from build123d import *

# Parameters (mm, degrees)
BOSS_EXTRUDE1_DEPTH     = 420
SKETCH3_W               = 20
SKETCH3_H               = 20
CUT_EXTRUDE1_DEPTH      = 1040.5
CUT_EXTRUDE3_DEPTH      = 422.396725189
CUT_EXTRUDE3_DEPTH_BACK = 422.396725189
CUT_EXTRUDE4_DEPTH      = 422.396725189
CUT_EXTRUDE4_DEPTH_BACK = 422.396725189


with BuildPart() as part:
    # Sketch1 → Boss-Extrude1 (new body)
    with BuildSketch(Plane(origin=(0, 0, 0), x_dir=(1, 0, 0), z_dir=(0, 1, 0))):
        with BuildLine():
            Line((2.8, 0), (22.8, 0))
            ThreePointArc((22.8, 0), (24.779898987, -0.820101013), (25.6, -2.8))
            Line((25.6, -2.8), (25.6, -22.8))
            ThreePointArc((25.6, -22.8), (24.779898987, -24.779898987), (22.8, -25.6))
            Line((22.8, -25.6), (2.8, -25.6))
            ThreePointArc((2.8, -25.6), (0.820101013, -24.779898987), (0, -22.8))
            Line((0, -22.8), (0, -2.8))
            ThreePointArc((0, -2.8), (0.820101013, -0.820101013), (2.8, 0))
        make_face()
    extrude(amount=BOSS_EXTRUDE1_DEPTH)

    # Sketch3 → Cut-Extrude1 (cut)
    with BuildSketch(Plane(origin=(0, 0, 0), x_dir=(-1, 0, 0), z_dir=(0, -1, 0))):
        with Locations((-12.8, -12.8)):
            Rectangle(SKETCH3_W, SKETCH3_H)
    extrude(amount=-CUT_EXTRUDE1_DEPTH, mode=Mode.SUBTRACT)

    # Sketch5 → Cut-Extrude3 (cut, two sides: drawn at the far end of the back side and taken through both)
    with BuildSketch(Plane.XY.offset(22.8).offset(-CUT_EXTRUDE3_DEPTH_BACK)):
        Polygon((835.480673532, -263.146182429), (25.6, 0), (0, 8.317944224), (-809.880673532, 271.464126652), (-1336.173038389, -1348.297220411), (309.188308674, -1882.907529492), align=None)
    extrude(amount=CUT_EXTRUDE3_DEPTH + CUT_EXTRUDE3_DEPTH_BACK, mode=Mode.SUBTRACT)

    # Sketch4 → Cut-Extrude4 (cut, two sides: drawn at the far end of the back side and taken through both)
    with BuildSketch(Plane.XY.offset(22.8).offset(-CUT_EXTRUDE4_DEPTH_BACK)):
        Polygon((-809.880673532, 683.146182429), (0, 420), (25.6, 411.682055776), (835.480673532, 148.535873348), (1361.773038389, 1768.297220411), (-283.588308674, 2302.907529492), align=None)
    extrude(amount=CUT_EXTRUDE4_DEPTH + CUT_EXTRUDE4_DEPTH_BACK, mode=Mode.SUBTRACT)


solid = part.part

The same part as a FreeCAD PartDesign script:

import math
import FreeCAD as App
import Part
import Sketcher

V = App.Vector
Q = App.Units.Quantity

doc = App.newDocument("Part")
body = doc.addObject("PartDesign::Body", "Body")

# Sketch on XZ plane
sketch1 = body.newObject("Sketcher::SketchObject", "Sketch")
sketch1.AttachmentSupport = (doc.getObject("XZ_Plane"), [""])
sketch1.MapMode = "FlatFace"
sketch1.addGeometry(Part.LineSegment(V(22.8, 0, 0), V(2.8, 0, 0)), False)
sketch1.addGeometry(Part.ArcOfCircle(Part.Circle(V(2.8, 2.8, 0), V(0, 0, 1), 2.8), math.radians(-180), math.radians(-90)), False)
sketch1.addGeometry(Part.LineSegment(V(0, 2.8, 0), V(0, 22.8, 0)), False)
sketch1.addGeometry(Part.ArcOfCircle(Part.Circle(V(2.8, 22.8, 0), V(0, 0, 1), 2.8), math.radians(90), math.radians(180)), False)
sketch1.addGeometry(Part.LineSegment(V(2.8, 25.6, 0), V(22.8, 25.6, 0)), False)
sketch1.addGeometry(Part.ArcOfCircle(Part.Circle(V(22.8, 22.8, 0), V(0, 0, 1), 2.8), math.radians(0), math.radians(90)), False)
sketch1.addGeometry(Part.LineSegment(V(25.6, 22.8, 0), V(25.6, 2.8, 0)), False)
sketch1.addGeometry(Part.ArcOfCircle(Part.Circle(V(22.8, 2.8, 0), V(0, 0, 1), 2.8), math.radians(-90), math.radians(0)), False)
sketch1.addConstraint(Sketcher.Constraint("Tangent", 0, 2, 1, 2))
sketch1.addConstraint(Sketcher.Constraint("Tangent", 1, 1, 2, 1))
sketch1.addConstraint(Sketcher.Constraint("Tangent", 2, 2, 3, 2))
sketch1.addConstraint(Sketcher.Constraint("Tangent", 3, 1, 4, 1))
sketch1.addConstraint(Sketcher.Constraint("Tangent", 4, 2, 5, 2))
sketch1.addConstraint(Sketcher.Constraint("Tangent", 5, 1, 6, 1))
sketch1.addConstraint(Sketcher.Constraint("Tangent", 6, 2, 7, 2))
sketch1.addConstraint(Sketcher.Constraint("Tangent", 7, 1, 0, 1))
sketch1.addConstraint(Sketcher.Constraint("Horizontal", 0))
sketch1.addConstraint(Sketcher.Constraint("Vertical", 2))
sketch1.addConstraint(Sketcher.Constraint("Horizontal", 4))
sketch1.addConstraint(Sketcher.Constraint("Vertical", 6))
sketch1.addConstraint(Sketcher.Constraint("Equal", 1, 3))
sketch1.addConstraint(Sketcher.Constraint("Equal", 3, 5))
sketch1.addConstraint(Sketcher.Constraint("Equal", 5, 7))
sketch1.addConstraint(Sketcher.Constraint("PointOnObject", 0, 2, -1))
sketch1.addConstraint(Sketcher.Constraint("PointOnObject", 1, 1, -2))
sketch1.addConstraint(Sketcher.Constraint("Equal", 4, 2))
sketch1.addConstraint(Sketcher.Constraint("Radius", 1, Q("2.8 mm")))
sketch1.addConstraint(Sketcher.Constraint("DistanceX", 0, 2, 0, 1, Q("20 mm")))
pad1 = body.newObject("PartDesign::Pad", "Pad")
pad1.Profile = sketch1
pad1.Length = 420
pad1.Reversed = True

# Sketch on XZ plane
sketch2 = body.newObject("Sketcher::SketchObject", "Sketch001")
sketch2.AttachmentSupport = (doc.getObject("XZ_Plane"), [""])
sketch2.MapMode = "FlatFace"
sketch2.addGeometry(Part.LineSegment(V(23, 3, 0), V(23, 23, 0)), False)
sketch2.addGeometry(Part.LineSegment(V(23, 23, 0), V(3, 23, 0)), False)
sketch2.addGeometry(Part.LineSegment(V(3, 23, 0), V(3, 3, 0)), False)
sketch2.addGeometry(Part.LineSegment(V(3, 3, 0), V(23, 3, 0)), False)
sketch2.addConstraint(Sketcher.Constraint("Coincident", 0, 2, 1, 1))
sketch2.addConstraint(Sketcher.Constraint("Coincident", 1, 2, 2, 1))
sketch2.addConstraint(Sketcher.Constraint("Coincident", 2, 2, 3, 1))
sketch2.addConstraint(Sketcher.Constraint("Coincident", 3, 2, 0, 1))
sketch2.addConstraint(Sketcher.Constraint("Vertical", 0))
sketch2.addConstraint(Sketcher.Constraint("Horizontal", 1))
sketch2.addConstraint(Sketcher.Constraint("Vertical", 2))
sketch2.addConstraint(Sketcher.Constraint("Horizontal", 3))
sketch2.addConstraint(Sketcher.Constraint("Equal", 3, 0))
sketch2.addConstraint(Sketcher.Constraint("DistanceX", 1, 2, 1, 1, Q("20 mm")))
sketch2.addConstraint(Sketcher.Constraint("DistanceX", -1, 1, 0, 2, Q("22.8 mm")))
sketch2.addConstraint(Sketcher.Constraint("DistanceY", -1, 1, 0, 2, Q("22.8 mm")))
pocket1 = body.newObject("PartDesign::Pocket", "Pocket")
pocket1.Profile = sketch2
pocket1.Length = 1040.5

# Sketch on XY plane
sketch3 = body.newObject("Sketcher::SketchObject", "Sketch002")
sketch3.AttachmentSupport = (doc.getObject("XY_Plane"), [""])
sketch3.MapMode = "FlatFace"
sketch3.AttachmentOffset = App.Placement(V(0, 0, 22.8), App.Rotation())
sketch3.addGeometry(Part.LineSegment(V(835, -263, 0), V(26, 0, 0)), False)
sketch3.addGeometry(Part.LineSegment(V(26, 0, 0), V(0, 8, 0)), False)
sketch3.addGeometry(Part.LineSegment(V(0, 8, 0), V(-810, 271, 0)), False)
sketch3.addGeometry(Part.LineSegment(V(-810, 271, 0), V(-1336, -1348, 0)), False)
sketch3.addGeometry(Part.LineSegment(V(-1336, -1348, 0), V(309, -1883, 0)), False)
sketch3.addGeometry(Part.LineSegment(V(309, -1883, 0), V(835, -263, 0)), False)
sketch3.addConstraint(Sketcher.Constraint("Coincident", 0, 2, 1, 1))
sketch3.addConstraint(Sketcher.Constraint("Coincident", 1, 2, 2, 1))
sketch3.addConstraint(Sketcher.Constraint("Coincident", 2, 2, 3, 1))
sketch3.addConstraint(Sketcher.Constraint("Coincident", 3, 2, 4, 1))
sketch3.addConstraint(Sketcher.Constraint("Coincident", 4, 2, 5, 1))
sketch3.addConstraint(Sketcher.Constraint("Coincident", 5, 2, 0, 1))
sketch3.addConstraint(Sketcher.Constraint("PointOnObject", 0, 2, -1))
sketch3.addConstraint(Sketcher.Constraint("PointOnObject", 1, 2, -2))
sketch3.addConstraint(Sketcher.Constraint("Parallel", 0, 1))
sketch3.addConstraint(Sketcher.Constraint("Parallel", 1, 2))
sketch3.addConstraint(Sketcher.Constraint("Perpendicular", 2, 3))
sketch3.addConstraint(Sketcher.Constraint("Perpendicular", 3, 4))
sketch3.addConstraint(Sketcher.Constraint("Perpendicular", 4, 5))
sketch3.addConstraint(Sketcher.Constraint("Equal", 0, 2))
sketch3.addConstraint(Sketcher.Constraint("Angle", 0, Q("162 deg")))
sketch3.addConstraint(Sketcher.Constraint("DistanceX", -1, 1, 0, 2, Q("25.6 mm")))
sketch3.addConstraint(Sketcher.Constraint("Distance", 4, Q("1730.035302 mm")))
sketch3.addConstraint(Sketcher.Constraint("Distance", 3, Q("1703.117869 mm")))
pocket2 = body.newObject("PartDesign::Pocket", "Pocket001")
pocket2.Profile = sketch3
pocket2.Type = "ThroughAll"
pocket2.Midplane = True

# Sketch on XY plane
sketch4 = body.newObject("Sketcher::SketchObject", "Sketch003")
sketch4.AttachmentSupport = (doc.getObject("XY_Plane"), [""])
sketch4.MapMode = "FlatFace"
sketch4.AttachmentOffset = App.Placement(V(0, 0, 22.8), App.Rotation())
sketch4.addGeometry(Part.LineSegment(V(-810, 683, 0), V(0, 420, 0)), False)
sketch4.addGeometry(Part.LineSegment(V(0, 420, 0), V(26, 412, 0)), False)
sketch4.addGeometry(Part.LineSegment(V(26, 412, 0), V(835, 149, 0)), False)
sketch4.addGeometry(Part.LineSegment(V(835, 149, 0), V(1362, 1768, 0)), False)
sketch4.addGeometry(Part.LineSegment(V(1362, 1768, 0), V(-284, 2303, 0)), False)
sketch4.addGeometry(Part.LineSegment(V(-284, 2303, 0), V(-810, 683, 0)), False)
sketch4.addConstraint(Sketcher.Constraint("Coincident", 0, 2, 1, 1))
sketch4.addConstraint(Sketcher.Constraint("Coincident", 1, 2, 2, 1))
sketch4.addConstraint(Sketcher.Constraint("Coincident", 2, 2, 3, 1))
sketch4.addConstraint(Sketcher.Constraint("Coincident", 3, 2, 4, 1))
sketch4.addConstraint(Sketcher.Constraint("Coincident", 4, 2, 5, 1))
sketch4.addConstraint(Sketcher.Constraint("Coincident", 5, 2, 0, 1))
sketch4.addConstraint(Sketcher.Constraint("PointOnObject", 0, 2, -2))
sketch4.addConstraint(Sketcher.Constraint("Parallel", 0, 1))
sketch4.addConstraint(Sketcher.Constraint("Parallel", 1, 2))
sketch4.addConstraint(Sketcher.Constraint("Perpendicular", 2, 3))
sketch4.addConstraint(Sketcher.Constraint("Perpendicular", 3, 4))
sketch4.addConstraint(Sketcher.Constraint("Perpendicular", 4, 5))
sketch4.addConstraint(Sketcher.Constraint("Equal", 0, 2))
sketch4.addConstraint(Sketcher.Constraint("Angle", 0, Q("-18 deg")))
sketch4.addConstraint(Sketcher.Constraint("DistanceY", -1, 1, 0, 2, Q("420 mm")))
sketch4.addConstraint(Sketcher.Constraint("DistanceX", -1, 1, 1, 2, Q("25.6 mm")))
sketch4.addConstraint(Sketcher.Constraint("Distance", 4, Q("1730.035302 mm")))
sketch4.addConstraint(Sketcher.Constraint("Distance", 3, Q("1703.117869 mm")))
pocket3 = body.newObject("PartDesign::Pocket", "Pocket002")
pocket3.Profile = sketch4
pocket3.Type = "ThroughAll"
pocket3.Midplane = True

doc.recompute()
